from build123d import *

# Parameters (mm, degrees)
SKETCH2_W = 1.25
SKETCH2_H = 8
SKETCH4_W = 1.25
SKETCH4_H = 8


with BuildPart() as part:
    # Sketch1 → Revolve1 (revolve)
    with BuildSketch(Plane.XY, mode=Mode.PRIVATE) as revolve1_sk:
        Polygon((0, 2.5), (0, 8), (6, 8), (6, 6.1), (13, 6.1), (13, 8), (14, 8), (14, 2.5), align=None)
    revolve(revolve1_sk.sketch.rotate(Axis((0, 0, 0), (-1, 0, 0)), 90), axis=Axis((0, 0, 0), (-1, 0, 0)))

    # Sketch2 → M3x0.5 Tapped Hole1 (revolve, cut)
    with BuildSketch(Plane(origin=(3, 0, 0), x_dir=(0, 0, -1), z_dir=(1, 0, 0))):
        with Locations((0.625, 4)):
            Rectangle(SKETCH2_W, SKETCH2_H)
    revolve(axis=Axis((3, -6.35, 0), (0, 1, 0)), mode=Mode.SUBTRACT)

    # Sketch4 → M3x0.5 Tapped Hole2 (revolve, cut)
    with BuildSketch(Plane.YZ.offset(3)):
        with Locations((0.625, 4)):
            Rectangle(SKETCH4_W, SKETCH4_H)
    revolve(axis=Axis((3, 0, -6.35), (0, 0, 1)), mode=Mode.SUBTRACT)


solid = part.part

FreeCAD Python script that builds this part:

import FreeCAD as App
import Part
import Sketcher

doc = App.newDocument("Part")
body = doc.addObject("PartDesign::Body", "Body")

# Sketch on XY plane
sketch1 = body.newObject("Sketcher::SketchObject", "Sketch")
sketch1.AttachmentSupport = (doc.getObject("XY_Plane"), [""])
sketch1.MapMode = "FlatFace"
sketch1.addGeometry([
    Part.LineSegment(App.Vector(0, 8, 0), App.Vector(0, 2.5, 0)),  # 0
    Part.LineSegment(App.Vector(0, 2.5, 0), App.Vector(14, 2.5, 0)),  # 1
    Part.LineSegment(App.Vector(14, 2.5, 0), App.Vector(14, 8, 0)),  # 2
    Part.LineSegment(App.Vector(14, 8, 0), App.Vector(13, 8, 0)),  # 3
    Part.LineSegment(App.Vector(13, 8, 0), App.Vector(13, 6.1, 0)),  # 4
    Part.LineSegment(App.Vector(13, 6.1, 0), App.Vector(6, 6.1, 0)),  # 5
    Part.LineSegment(App.Vector(6, 6.1, 0), App.Vector(6, 8, 0)),  # 6
    Part.LineSegment(App.Vector(6, 8, 0), App.Vector(0, 8, 0)),  # 7
], False)
sketch1.addConstraint([
    Sketcher.Constraint("Coincident", 0, 2, 1, 1),
    Sketcher.Constraint("Coincident", 1, 2, 2, 1),
    Sketcher.Constraint("Coincident", 2, 2, 3, 1),
    Sketcher.Constraint("Coincident", 3, 2, 4, 1),
    Sketcher.Constraint("Coincident", 4, 2, 5, 1),
    Sketcher.Constraint("Coincident", 5, 2, 6, 1),
    Sketcher.Constraint("Coincident", 6, 2, 7, 1),
    Sketcher.Constraint("Coincident", 7, 2, 0, 1),
    Sketcher.Constraint("Vertical", 0),
    Sketcher.Constraint("Horizontal", 1),
    Sketcher.Constraint("Vertical", 2),
    Sketcher.Constraint("Horizontal", 3),
    Sketcher.Constraint("Vertical", 4),
    Sketcher.Constraint("Horizontal", 5),
    Sketcher.Constraint("Vertical", 6),
    Sketcher.Constraint("Horizontal", 7),
    Sketcher.Constraint("PointOnObject", 0, 2, -2),
    Sketcher.Constraint("Horizontal", 3, 2, 6, 2),
    Sketcher.Constraint("DistanceX", 1, 1, 1, 2, 14.0),
    Sketcher.Constraint("DistanceX", 3, 2, 3, 1, 1.0),
    Sketcher.Constraint("DistanceX", 5, 2, 5, 1, 7.0),
    Sketcher.Constraint("DistanceY", 0, 2, 0, 1, 5.5),
    Sketcher.Constraint("DistanceY", 4, 2, 4, 1, 1.9),
    Sketcher.Constraint("DistanceY", -1, 1, 2, 2, 8.0),
])
revolution = body.newObject("PartDesign::Revolution", "Revolution")
revolution.Profile = sketch1
revolution.ReferenceAxis = (sketch1, ["H_Axis"])
revolution.Angle = 360

# Sketch on YZ plane
sketch2 = body.newObject("Sketcher::SketchObject", "Sketch001")
sketch2.AttachmentSupport = (doc.getObject("YZ_Plane"), [""])
sketch2.MapMode = "FlatFace"
sketch2.AttachmentOffset = App.Placement(App.Vector(0, 0, 3), App.Rotation())
sketch2.addGeometry([
    Part.LineSegment(App.Vector(8, 0, 0), App.Vector(0, 0, 0)),
    Part.LineSegment(App.Vector(0, 0, 0), App.Vector(0, -1.25, 0)),
    Part.LineSegment(App.Vector(0, -1.25, 0), App.Vector(8, -1.25, 0)),
    Part.LineSegment(App.Vector(8, -1.25, 0), App.Vector(8, 0, 0)),
], False)
sketch2.addConstraint([
    Sketcher.Constraint("Coincident", 0, 2, 1, 1),
    Sketcher.Constraint("Coincident", 1, 2, 2, 1),
    Sketcher.Constraint("Coincident", 2, 2, 3, 1),
    Sketcher.Constraint("Coincident", 3, 2, 0, 1),
    Sketcher.Constraint("Horizontal", 0),
    Sketcher.Constraint("Vertical", 1),
    Sketcher.Constraint("Horizontal", 2),
    Sketcher.Constraint("Vertical", 3),
    Sketcher.Constraint("Coincident", 0, 2, -1, 1),
    Sketcher.Constraint("DistanceX", 0, 2, 0, 1, 8.0),
    Sketcher.Constraint("DistanceY", 1, 2, 1, 1, 1.25),
])
groove = body.newObject("PartDesign::Groove", "Groove")
groove.Profile = sketch2
groove.ReferenceAxis = (sketch2, ["H_Axis"])
groove.Angle = 360

# Sketch on YZ plane
sketch3 = body.newObject("Sketcher::SketchObject", "Sketch002")
sketch3.AttachmentSupport = (doc.getObject("YZ_Plane"), [""])
sketch3.MapMode = "FlatFace"
sketch3.AttachmentOffset = App.Placement(App.Vector(0, 0, 3), App.Rotation())
sketch3.addGeometry([
    Part.LineSegment(App.Vector(0, 8, 0), App.Vector(0, 0, 0)),
    Part.LineSegment(App.Vector(0, 0, 0), App.Vector(1.25, 0, 0)),
    Part.LineSegment(App.Vector(1.25, 0, 0), App.Vector(1.25, 8, 0)),
    Part.LineSegment(App.Vector(1.25, 8, 0), App.Vector(0, 8, 0)),
], False)
sketch3.addConstraint([
    Sketcher.Constraint("Coincident", 0, 2, 1, 1),
    Sketcher.Constraint("Coincident", 1, 2, 2, 1),
    Sketcher.Constraint("Coincident", 2, 2, 3, 1),
    Sketcher.Constraint("Coincident", 3, 2, 0, 1),
    Sketcher.Constraint("Vertical", 0),
    Sketcher.Constraint("Horizontal", 1),
    Sketcher.Constraint("Vertical", 2),
    Sketcher.Constraint("Horizontal", 3),
    Sketcher.Constraint("Coincident", 0, 2, -1, 1),
    Sketcher.Constraint("DistanceY", 0, 2, 0, 1, 8.0),
    Sketcher.Constraint("DistanceX", 1, 1, 1, 2, 1.25),
])
groove2 = body.newObject("PartDesign::Groove", "Groove001")
groove2.Profile = sketch3
groove2.ReferenceAxis = (sketch3, ["V_Axis"])
groove2.Angle = 360

doc.recompute()
